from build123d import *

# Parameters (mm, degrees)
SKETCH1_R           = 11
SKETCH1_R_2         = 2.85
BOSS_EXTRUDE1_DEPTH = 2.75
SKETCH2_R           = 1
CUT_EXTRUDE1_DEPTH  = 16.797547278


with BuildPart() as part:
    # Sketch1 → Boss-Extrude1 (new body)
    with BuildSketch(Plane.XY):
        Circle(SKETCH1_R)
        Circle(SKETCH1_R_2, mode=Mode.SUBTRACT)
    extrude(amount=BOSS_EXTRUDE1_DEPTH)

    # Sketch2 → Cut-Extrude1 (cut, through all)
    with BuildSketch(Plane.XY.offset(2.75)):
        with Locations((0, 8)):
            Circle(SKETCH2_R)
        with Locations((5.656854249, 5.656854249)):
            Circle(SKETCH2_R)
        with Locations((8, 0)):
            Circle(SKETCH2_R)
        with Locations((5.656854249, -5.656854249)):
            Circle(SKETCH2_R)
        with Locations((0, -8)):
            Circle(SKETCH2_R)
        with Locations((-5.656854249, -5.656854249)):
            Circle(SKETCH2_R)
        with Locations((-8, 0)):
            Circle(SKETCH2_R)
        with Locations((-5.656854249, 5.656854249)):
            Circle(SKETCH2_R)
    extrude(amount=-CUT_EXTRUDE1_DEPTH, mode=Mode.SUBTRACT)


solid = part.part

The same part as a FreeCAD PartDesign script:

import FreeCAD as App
import Part
import Sketcher
from FreeCAD import Vector
Q = App.Units.Quantity

doc = App.newDocument("Part")
body = doc.addObject("PartDesign::Body", "Body")

# Sketch on XY plane
sketch1 = body.newObject("Sketcher::SketchObject", "Sketch")
sketch1.AttachmentSupport = (doc.getObject("XY_Plane"), [""])
sketch1.MapMode = "FlatFace"
sketch1.addGeometry(Part.Circle(Vector(0, 0, 0), Vector(0, 0, 1), 11), False)
sketch1.addGeometry(Part.Circle(Vector(0, 0, 0), Vector(0, 0, 1), 2.9), False)
sketch1.addConstraint(Sketcher.Constraint("Coincident", 0, 3, -1, 1))
sketch1.addConstraint(Sketcher.Constraint("Coincident", 1, 3, -1, 1))
sketch1.addConstraint(Sketcher.Constraint("Diameter", 0, Q("22 mm")))
sketch1.addConstraint(Sketcher.Constraint("Diameter", 1, Q("5.7 mm")))
pad1 = body.newObject("PartDesign::Pad", "Pad")
pad1.Profile = sketch1
pad1.Length = 2.75

# Sketch on XY plane
sketch2 = body.newObject("Sketcher::SketchObject", "Sketch001")
sketch2.AttachmentSupport = (doc.getObject("XY_Plane"), [""])
sketch2.MapMode = "FlatFace"
sketch2.AttachmentOffset = App.Placement(Vector(0, 0, 2.75), App.Rotation())
sketch2.addGeometry(Part.Circle(Vector(0, 8, 0), Vector(0, 0, 1), 1), False)
sketch2.addGeometry(Part.Circle(Vector(5.7, 5.7, 0), Vector(0, 0, 1), 1), False)
sketch2.addGeometry(Part.Circle(Vector(8, 0, 0), Vector(0, 0, 1), 1), False)
sketch2.addGeometry(Part.Circle(Vector(5.7, -5.7, 0), Vector(0, 0, 1), 1), False)
sketch2.addGeometry(Part.Circle(Vector(0, -8, 0), Vector(0, 0, 1), 1), False)
sketch2.addGeometry(Part.Circle(Vector(-5.7, -5.7, 0), Vector(0, 0, 1), 1), False)
sketch2.addGeometry(Part.Circle(Vector(-8, 0, 0), Vector(0, 0, 1), 1), False)
sketch2.addGeometry(Part.Circle(Vector(-5.7, 5.7, 0), Vector(0, 0, 1), 1), False)
sketch2.addConstraint(Sketcher.Constraint("Equal", 0, 1))
sketch2.addConstraint(Sketcher.Constraint("Equal", 1, 2))
sketch2.addConstraint(Sketcher.Constraint("Equal", 2, 3))
sketch2.addConstraint(Sketcher.Constraint("Equal", 3, 4))
sketch2.addConstraint(Sketcher.Constraint("Equal", 4, 5))
sketch2.addConstraint(Sketcher.Constraint("Equal", 5, 6))
sketch2.addConstraint(Sketcher.Constraint("Equal", 6, 7))
sketch2.addConstraint(Sketcher.Constraint("Symmetric", 0, 3, 4, 3, -1, 1))
sketch2.addConstraint(Sketcher.Constraint("Symmetric", 1, 3, 5, 3, -1, 1))
sketch2.addConstraint(Sketcher.Constraint("Symmetric", 2, 3, 6, 3, -1, 1))
sketch2.addConstraint(Sketcher.Constraint("Symmetric", 3, 3, 7, 3, -1, 1))
sketch2.addConstraint(Sketcher.Constraint("Symmetric", 3, 3, 5, 3, -2))
sketch2.addConstraint(Sketcher.Constraint("PointOnObject", 0, 3, -2))
sketch2.addConstraint(Sketcher.Constraint("PointOnObject", 2, 3, -1))
sketch2.addConstraint(Sketcher.Constraint("Diameter", 0, Q("2 mm")))
sketch2.addConstraint(Sketcher.Constraint("DistanceY", -1, 1, 0, 3, Q("8 mm")))
sketch2.addConstraint(Sketcher.Constraint("DistanceX", -1, 1, 2, 3, Q("8 mm")))
sketch2.addConstraint(Sketcher.Constraint("DistanceY", 3, 3, 1, 3, Q("11.313708 mm")))
sketch2.addConstraint(Sketcher.Constraint("DistanceX", 5, 3, 3, 3, Q("11.313708 mm")))
pocket1 = body.newObject("PartDesign::Pocket", "Pocket")
pocket1.Profile = sketch2
pocket1.Type = "ThroughAll"

doc.recompute()
